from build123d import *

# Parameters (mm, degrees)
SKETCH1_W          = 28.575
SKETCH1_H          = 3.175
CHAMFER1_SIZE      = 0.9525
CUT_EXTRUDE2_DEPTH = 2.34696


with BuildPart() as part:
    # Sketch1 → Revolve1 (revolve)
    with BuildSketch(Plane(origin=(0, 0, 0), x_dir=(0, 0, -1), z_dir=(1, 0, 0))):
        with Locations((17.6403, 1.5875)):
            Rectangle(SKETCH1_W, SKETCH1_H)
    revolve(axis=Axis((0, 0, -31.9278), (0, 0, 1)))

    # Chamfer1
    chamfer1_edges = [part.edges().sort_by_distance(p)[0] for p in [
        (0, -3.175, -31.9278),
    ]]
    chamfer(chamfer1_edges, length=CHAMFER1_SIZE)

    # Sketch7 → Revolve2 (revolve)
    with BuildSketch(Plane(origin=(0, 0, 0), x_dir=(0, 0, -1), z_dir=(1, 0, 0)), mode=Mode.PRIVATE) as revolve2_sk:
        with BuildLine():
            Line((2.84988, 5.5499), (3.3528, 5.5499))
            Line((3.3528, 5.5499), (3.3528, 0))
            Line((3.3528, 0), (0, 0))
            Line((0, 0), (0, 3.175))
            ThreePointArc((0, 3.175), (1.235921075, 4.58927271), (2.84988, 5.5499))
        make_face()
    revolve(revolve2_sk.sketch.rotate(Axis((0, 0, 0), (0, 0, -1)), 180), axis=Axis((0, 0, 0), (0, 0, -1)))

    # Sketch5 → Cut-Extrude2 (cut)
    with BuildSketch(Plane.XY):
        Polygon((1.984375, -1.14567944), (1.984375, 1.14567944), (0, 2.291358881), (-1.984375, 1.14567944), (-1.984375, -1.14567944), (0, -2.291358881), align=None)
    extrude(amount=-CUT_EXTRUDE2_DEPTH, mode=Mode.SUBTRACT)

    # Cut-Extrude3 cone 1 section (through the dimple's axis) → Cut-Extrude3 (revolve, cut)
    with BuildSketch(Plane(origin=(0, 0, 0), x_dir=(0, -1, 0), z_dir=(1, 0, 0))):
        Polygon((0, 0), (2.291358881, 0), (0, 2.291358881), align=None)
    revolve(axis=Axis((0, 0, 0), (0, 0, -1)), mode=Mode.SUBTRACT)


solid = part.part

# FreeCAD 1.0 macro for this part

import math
import FreeCAD as App
import Part
import Sketcher

V = App.Vector
Q = App.Units.Quantity


def edges_at(feature, points):
    """Names of the edges that pass closest to the given points."""
    edges = feature.Shape.Edges
    near = lambda p: min(range(len(edges)), key=lambda i: edges[i].distToShape(Part.Vertex(*p))[0])
    return sorted({f"Edge{near(p) + 1}" for p in points})

doc = App.newDocument("Part")
params = doc.addObject("Spreadsheet::Sheet", "Params")
for row, (alias, value) in enumerate([
    ("sketch1_width", "0.125 in"),
    ("sketch1_height", "1.125 in"),
    ("revolution_angle", "360 deg"),
    ("chamfer_size", "0.0375 in"),
    ("sketch2_width", "0.125 in"),
    ("sketch2_height", "0.132 in"),
    ("revolution2_angle", "360 deg"),
    ("pocket1_length", "0.0924 in"),
    ("groove_angle", "360 deg"),
], start=1):
    params.set(f"A{row}", alias)
    params.set(f"B{row}", "=" + value)
    params.setAlias(f"B{row}", alias)

body = doc.addObject("PartDesign::Body", "Body")

# Sketch on YZ plane
sketch1 = body.newObject("Sketcher::SketchObject", "Sketch")
sketch1.AttachmentSupport = (doc.getObject("YZ_Plane"), [""])
sketch1.MapMode = "FlatFace"
sketch1.addGeometry([
    Part.LineSegment(V(3.2, -3.4, 0), V(0, -3.4, 0)),
    Part.LineSegment(V(0, -3.4, 0), V(0, -31.9, 0)),
    Part.LineSegment(V(0, -31.9, 0), V(3.2, -31.9, 0)),
    Part.LineSegment(V(3.2, -31.9, 0), V(3.2, -3.4, 0)),
], False)
sketch1.addConstraint([
    Sketcher.Constraint("Coincident", 0, 2, 1, 1),
    Sketcher.Constraint("Coincident", 1, 2, 2, 1),
    Sketcher.Constraint("Coincident", 2, 2, 3, 1),
    Sketcher.Constraint("Coincident", 3, 2, 0, 1),
    Sketcher.Constraint("Horizontal", 0),
    Sketcher.Constraint("Vertical", 1),
    Sketcher.Constraint("Horizontal", 2),
    Sketcher.Constraint("Vertical", 3),
    Sketcher.Constraint("PointOnObject", 0, 2, -2),
    Sketcher.Constraint("DistanceX", 0, 2, 0, 1, Q("0.125 in")),
    Sketcher.Constraint("DistanceY", 1, 2, 1, 1, Q("1.125 in")),
    Sketcher.Constraint("DistanceY", 0, 2, -1, 1, Q("0.132 in")),
])
sketch1.setExpression("Constraints[9]", "Params.sketch1_width")
sketch1.setExpression("Constraints[10]", "Params.sketch1_height")
revolution = body.newObject("PartDesign::Revolution", "Revolution")
revolution.Profile = sketch1
revolution.ReferenceAxis = (sketch1, ["V_Axis"])
revolution.setExpression("Angle", "Params.revolution_angle")
doc.recompute()

chamfer = body.newObject("PartDesign::Chamfer", "Chamfer")
chamfer.Base = (revolution, edges_at(revolution, [(0, -3.175, -31.928)]))
chamfer.setExpression("Size", "Params.chamfer_size")

# Sketch on YZ plane
sketch2 = body.newObject("Sketcher::SketchObject", "Sketch001")
sketch2.AttachmentSupport = (doc.getObject("YZ_Plane"), [""])
sketch2.MapMode = "FlatFace"
sketch2.addGeometry([
    Part.LineSegment(V(5.5, -3.4, 0), V(5.5, -2.8, 0)),  # 0
    Part.ArcOfCircle(Part.Circle(V(0, -5.1, 0), V(0, 0, 1), 6), math.radians(22), math.radians(58)),  # 1
    Part.LineSegment(V(3.2, 0, 0), V(0, 0, 0)),  # 2
    Part.LineSegment(V(0, 0, 0), V(0, -3.4, 0)),  # 3
    Part.LineSegment(V(0, -3.4, 0), V(5.5, -3.4, 0)),  # 4
], False)
sketch2.addConstraint([
    Sketcher.Constraint("Coincident", 0, 2, 1, 1),
    Sketcher.Constraint("Coincident", 1, 2, 2, 1),
    Sketcher.Constraint("Coincident", 2, 2, 3, 1),
    Sketcher.Constraint("Coincident", 3, 2, 4, 1),
    Sketcher.Constraint("Coincident", 4, 2, 0, 1),
    Sketcher.Constraint("Vertical", 0),
    Sketcher.Constraint("Horizontal", 2),
    Sketcher.Constraint("Vertical", 3),
    Sketcher.Constraint("Horizontal", 4),
    Sketcher.Constraint("Coincident", 2, 2, -1, 1),
    Sketcher.Constraint("PointOnObject", 1, 3, -2),
    Sketcher.Constraint("DistanceX", 2, 2, 2, 1, Q("0.125 in")),
    Sketcher.Constraint("DistanceY", 3, 2, 3, 1, Q("0.132 in")),
    Sketcher.Constraint("DistanceX", 4, 1, 4, 2, Q("0.2185 in")),
    Sketcher.Constraint("DistanceY", 0, 1, 0, 2, Q("0.0198 in")),
])
sketch2.setExpression("Constraints[11]", "Params.sketch2_width")
sketch2.setExpression("Constraints[12]", "Params.sketch2_height")
revolution2 = body.newObject("PartDesign::Revolution", "Revolution001")
revolution2.Profile = sketch2
revolution2.ReferenceAxis = (sketch2, ["V_Axis"])
revolution2.setExpression("Angle", "Params.revolution2_angle")

# Sketch on XY plane
sketch3 = body.newObject("Sketcher::SketchObject", "Sketch002")
sketch3.AttachmentSupport = (doc.getObject("XY_Plane"), [""])
sketch3.MapMode = "FlatFace"
sketch3.addGeometry([
    Part.LineSegment(V(2, -1.1, 0), V(2, 1.1, 0)),  # 0
    Part.LineSegment(V(2, 1.1, 0), V(0, 2.3, 0)),  # 1
    Part.LineSegment(V(0, 2.3, 0), V(-2, 1.1, 0)),  # 2
    Part.LineSegment(V(-2, 1.1, 0), V(-2, -1.1, 0)),  # 3
    Part.LineSegment(V(-2, -1.1, 0), V(0, -2.3, 0)),  # 4
    Part.LineSegment(V(0, -2.3, 0), V(2, -1.1, 0)),  # 5
], False)
sketch3.addConstraint([
    Sketcher.Constraint("Coincident", 0, 2, 1, 1),
    Sketcher.Constraint("Coincident", 1, 2, 2, 1),
    Sketcher.Constraint("Coincident", 2, 2, 3, 1),
    Sketcher.Constraint("Coincident", 3, 2, 4, 1),
    Sketcher.Constraint("Coincident", 4, 2, 5, 1),
    Sketcher.Constraint("Coincident", 5, 2, 0, 1),
    Sketcher.Constraint("Vertical", 0),
    Sketcher.Constraint("Vertical", 3),
    Sketcher.Constraint("Symmetric", 0, 2, 3, 2, -1, 1),
    Sketcher.Constraint("Symmetric", 1, 2, 4, 2, -1, 1),
    Sketcher.Constraint("PointOnObject", 1, 2, -2),
    Sketcher.Constraint("Parallel", 2, 5),
    Sketcher.Constraint("Horizontal", 0, 2, 2, 2),
    Sketcher.Constraint("Angle", 1, Q("150 deg")),
    Sketcher.Constraint("DistanceX", -1, 1, 0, 2, Q("0.078125 in")),
    Sketcher.Constraint("DistanceY", 0, 1, 0, 2, Q("2.291359 mm")),
])
pocket1 = body.newObject("PartDesign::Pocket", "Pocket")
pocket1.Profile = sketch3
pocket1.setExpression("Length", "Params.pocket1_length")

# Sketch on YZ plane
sketch4 = body.newObject("Sketcher::SketchObject", "Sketch003")
sketch4.AttachmentSupport = (doc.getObject("YZ_Plane"), [""])
sketch4.MapMode = "FlatFace"
sketch4.addGeometry([
    Part.LineSegment(V(0, 0, 0), V(-2.3, 0, 0)),
    Part.LineSegment(V(-2.3, 0, 0), V(0, -2.3, 0)),
    Part.LineSegment(V(0, -2.3, 0), V(0, 0, 0)),
], False)
sketch4.addConstraint([
    Sketcher.Constraint("Coincident", 0, 2, 1, 1),
    Sketcher.Constraint("Coincident", 1, 2, 2, 1),
    Sketcher.Constraint("Coincident", 2, 2, 0, 1),
    Sketcher.Constraint("Horizontal", 0),
    Sketcher.Constraint("Vertical", 2),
    Sketcher.Constraint("Coincident", 2, 2, -1, 1),
    Sketcher.Constraint("Equal", 0, 2),
    Sketcher.Constraint("DistanceX", 0, 2, 0, 1, Q("2.291359 mm")),
])
groove = body.newObject("PartDesign::Groove", "Groove")
groove.Profile = sketch4
groove.ReferenceAxis = (sketch4, ["V_Axis"])
groove.setExpression("Angle", "Params.groove_angle")

doc.recompute()
